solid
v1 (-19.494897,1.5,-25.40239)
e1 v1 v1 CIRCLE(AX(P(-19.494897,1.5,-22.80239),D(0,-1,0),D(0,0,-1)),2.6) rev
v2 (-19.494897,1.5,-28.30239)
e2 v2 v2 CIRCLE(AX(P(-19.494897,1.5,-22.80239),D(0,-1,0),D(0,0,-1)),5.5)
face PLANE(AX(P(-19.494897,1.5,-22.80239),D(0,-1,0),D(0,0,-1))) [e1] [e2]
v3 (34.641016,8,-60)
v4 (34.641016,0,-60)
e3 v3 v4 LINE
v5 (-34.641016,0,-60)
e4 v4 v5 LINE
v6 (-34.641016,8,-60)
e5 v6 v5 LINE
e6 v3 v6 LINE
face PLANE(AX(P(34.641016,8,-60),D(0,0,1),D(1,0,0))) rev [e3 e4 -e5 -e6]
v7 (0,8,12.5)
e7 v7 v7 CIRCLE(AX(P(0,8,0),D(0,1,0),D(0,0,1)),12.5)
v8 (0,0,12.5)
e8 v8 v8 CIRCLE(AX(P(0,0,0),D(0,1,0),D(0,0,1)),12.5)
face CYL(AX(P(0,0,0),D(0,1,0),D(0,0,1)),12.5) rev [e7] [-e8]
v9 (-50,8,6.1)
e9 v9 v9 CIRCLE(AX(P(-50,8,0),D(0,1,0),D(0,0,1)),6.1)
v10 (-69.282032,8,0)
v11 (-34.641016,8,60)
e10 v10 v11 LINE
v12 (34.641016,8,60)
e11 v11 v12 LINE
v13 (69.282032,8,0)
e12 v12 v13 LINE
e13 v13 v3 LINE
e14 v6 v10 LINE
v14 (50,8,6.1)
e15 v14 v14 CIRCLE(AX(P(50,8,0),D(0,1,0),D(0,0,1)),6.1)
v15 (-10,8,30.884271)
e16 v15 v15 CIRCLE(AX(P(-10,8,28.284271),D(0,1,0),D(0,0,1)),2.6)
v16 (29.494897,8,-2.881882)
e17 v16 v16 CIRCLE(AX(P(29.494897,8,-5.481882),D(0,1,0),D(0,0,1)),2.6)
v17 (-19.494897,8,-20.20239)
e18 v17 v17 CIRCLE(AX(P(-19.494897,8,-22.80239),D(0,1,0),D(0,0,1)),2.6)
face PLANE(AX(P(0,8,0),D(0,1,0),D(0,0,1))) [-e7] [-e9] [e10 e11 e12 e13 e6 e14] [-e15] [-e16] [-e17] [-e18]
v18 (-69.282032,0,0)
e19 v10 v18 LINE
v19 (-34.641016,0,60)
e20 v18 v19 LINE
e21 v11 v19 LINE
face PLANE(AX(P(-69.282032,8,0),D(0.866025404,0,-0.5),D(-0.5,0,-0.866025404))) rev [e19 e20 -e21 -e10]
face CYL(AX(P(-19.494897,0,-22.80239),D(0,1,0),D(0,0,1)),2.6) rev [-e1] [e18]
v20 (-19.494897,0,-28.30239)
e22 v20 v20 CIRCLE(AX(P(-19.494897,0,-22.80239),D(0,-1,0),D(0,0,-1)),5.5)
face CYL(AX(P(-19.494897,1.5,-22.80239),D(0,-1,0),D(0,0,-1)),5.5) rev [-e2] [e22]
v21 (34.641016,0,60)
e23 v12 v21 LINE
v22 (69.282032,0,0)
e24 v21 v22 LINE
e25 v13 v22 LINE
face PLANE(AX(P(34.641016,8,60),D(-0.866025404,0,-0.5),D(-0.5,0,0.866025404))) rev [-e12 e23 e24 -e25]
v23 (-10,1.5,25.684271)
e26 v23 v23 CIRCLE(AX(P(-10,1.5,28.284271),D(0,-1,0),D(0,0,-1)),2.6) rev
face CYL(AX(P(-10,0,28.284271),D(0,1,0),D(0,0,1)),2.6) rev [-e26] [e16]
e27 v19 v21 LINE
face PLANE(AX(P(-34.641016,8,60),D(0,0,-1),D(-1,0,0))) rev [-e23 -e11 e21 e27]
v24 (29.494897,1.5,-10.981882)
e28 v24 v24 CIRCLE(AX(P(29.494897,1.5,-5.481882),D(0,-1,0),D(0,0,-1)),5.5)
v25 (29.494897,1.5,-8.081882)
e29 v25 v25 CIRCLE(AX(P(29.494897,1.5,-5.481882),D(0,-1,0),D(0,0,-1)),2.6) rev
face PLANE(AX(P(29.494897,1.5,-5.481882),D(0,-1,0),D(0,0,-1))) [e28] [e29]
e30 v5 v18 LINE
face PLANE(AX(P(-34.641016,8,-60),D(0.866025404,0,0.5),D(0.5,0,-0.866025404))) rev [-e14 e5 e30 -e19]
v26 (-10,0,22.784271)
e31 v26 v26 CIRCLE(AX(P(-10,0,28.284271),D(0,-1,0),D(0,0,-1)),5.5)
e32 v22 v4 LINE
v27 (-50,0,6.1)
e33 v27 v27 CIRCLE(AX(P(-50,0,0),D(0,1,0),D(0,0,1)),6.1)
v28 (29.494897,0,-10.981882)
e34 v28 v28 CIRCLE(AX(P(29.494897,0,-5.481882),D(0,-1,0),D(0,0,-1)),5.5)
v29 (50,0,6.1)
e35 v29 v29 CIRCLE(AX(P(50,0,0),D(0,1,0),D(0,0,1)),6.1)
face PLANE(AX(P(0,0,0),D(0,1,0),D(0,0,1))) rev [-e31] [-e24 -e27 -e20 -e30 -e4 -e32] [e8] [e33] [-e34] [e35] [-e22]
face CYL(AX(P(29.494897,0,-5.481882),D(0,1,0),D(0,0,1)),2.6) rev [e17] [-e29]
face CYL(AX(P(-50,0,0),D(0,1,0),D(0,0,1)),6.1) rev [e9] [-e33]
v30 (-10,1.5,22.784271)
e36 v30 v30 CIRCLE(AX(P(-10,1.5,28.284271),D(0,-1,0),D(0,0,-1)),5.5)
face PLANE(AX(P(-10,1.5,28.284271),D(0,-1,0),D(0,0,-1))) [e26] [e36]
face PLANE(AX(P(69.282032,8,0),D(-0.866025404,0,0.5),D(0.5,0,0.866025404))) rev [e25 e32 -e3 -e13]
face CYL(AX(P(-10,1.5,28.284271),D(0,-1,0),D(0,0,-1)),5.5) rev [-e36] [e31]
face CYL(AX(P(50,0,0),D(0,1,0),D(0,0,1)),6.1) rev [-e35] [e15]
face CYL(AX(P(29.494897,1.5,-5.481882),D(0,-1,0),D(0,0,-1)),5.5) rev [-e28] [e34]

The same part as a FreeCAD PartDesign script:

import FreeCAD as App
import Part
import Sketcher
Q = App.Units.Quantity

doc = App.newDocument("Part")
body = doc.addObject("PartDesign::Body", "Body")

# Sketch on XZ plane
sketch1 = body.newObject("Sketcher::SketchObject", "Sketch")
sketch1.AttachmentSupport = (doc.getObject("XZ_Plane"), [""])
sketch1.MapMode = "FlatFace"
sketch1.addGeometry([
    Part.LineSegment(App.Vector(69, 0, 0), App.Vector(35, -60, 0)),  # 0
    Part.LineSegment(App.Vector(35, -60, 0), App.Vector(-35, -60, 0)),  # 1
    Part.LineSegment(App.Vector(-35, -60, 0), App.Vector(-69, 0, 0)),  # 2
    Part.LineSegment(App.Vector(-69, 0, 0), App.Vector(-35, 60, 0)),  # 3
    Part.LineSegment(App.Vector(-35, 60, 0), App.Vector(35, 60, 0)),  # 4
    Part.LineSegment(App.Vector(35, 60, 0), App.Vector(69, 0, 0)),  # 5
], False)
sketch1.addConstraint([
    Sketcher.Constraint("Coincident", 0, 2, 1, 1),
    Sketcher.Constraint("Coincident", 1, 2, 2, 1),
    Sketcher.Constraint("Coincident", 2, 2, 3, 1),
    Sketcher.Constraint("Coincident", 3, 2, 4, 1),
    Sketcher.Constraint("Coincident", 4, 2, 5, 1),
    Sketcher.Constraint("Coincident", 5, 2, 0, 1),
    Sketcher.Constraint("Horizontal", 1),
    Sketcher.Constraint("Horizontal", 4),
    Sketcher.Constraint("Symmetric", 0, 2, 3, 2, -1, 1),
    Sketcher.Constraint("Symmetric", 2, 2, 5, 2, -1, 1),
    Sketcher.Constraint("PointOnObject", 2, 2, -1),
    Sketcher.Constraint("Parallel", 2, 5),
    Sketcher.Constraint("Vertical", 1, 2, 3, 2),
    Sketcher.Constraint("Angle", 0, Q("-120 deg")),
    Sketcher.Constraint("DistanceY", 0, 2, -1, 1, Q("60 mm")),
    Sketcher.Constraint("DistanceX", 1, 2, 1, 1, Q("69.282032 mm")),
])
pad1 = body.newObject("PartDesign::Pad", "Pad")
pad1.Profile = sketch1
pad1.Length = 8
pad1.Reversed = True

# Sketch on XZ plane
sketch2 = body.newObject("Sketcher::SketchObject", "Sketch001")
sketch2.AttachmentSupport = (doc.getObject("XZ_Plane"), [""])
sketch2.MapMode = "FlatFace"
sketch2.AttachmentOffset = App.Placement(App.Vector(0, 0, -8), App.Rotation())
sketch2.addGeometry([
    Part.Circle(App.Vector(-50, 0, 0), App.Vector(0, 0, 1), 6),
    Part.Circle(App.Vector(50, 0, 0), App.Vector(0, 0, 1), 6),
], False)
sketch2.addConstraint([
    Sketcher.Constraint("Equal", 0, 1),
    Sketcher.Constraint("Symmetric", 0, 3, 1, 3, -1, 1),
    Sketcher.Constraint("PointOnObject", 0, 3, -1),
    Sketcher.Constraint("Diameter", 0, Q("12.2 mm")),
    Sketcher.Constraint("DistanceX", 0, 3, -1, 1, Q("50 mm")),
])
pocket1 = body.newObject("PartDesign::Pocket", "Pocket")
pocket1.Profile = sketch2
pocket1.Type = "ThroughAll"
pocket1.Reversed = True

# Sketch on XZ plane
sketch3 = body.newObject("Sketcher::SketchObject", "Sketch002")
sketch3.AttachmentSupport = (doc.getObject("XZ_Plane"), [""])
sketch3.MapMode = "FlatFace"
sketch3.AttachmentOffset = App.Placement(App.Vector(0, 0, -8), App.Rotation())
sketch3.addGeometry(Part.Circle(App.Vector(0, 0, 0), App.Vector(0, 0, 1), 12), False)
sketch3.addConstraint([
    Sketcher.Constraint("Coincident", 0, 3, -1, 1),
    Sketcher.Constraint("Diameter", 0, Q("25 mm")),
])
pocket2 = body.newObject("PartDesign::Pocket", "Pocket001")
pocket2.Profile = sketch3
pocket2.Type = "ThroughAll"
pocket2.Reversed = True

# Sketch on XZ plane
sketch4 = body.newObject("Sketcher::SketchObject", "Sketch003")
sketch4.AttachmentSupport = (doc.getObject("XZ_Plane"), [""])
sketch4.MapMode = "FlatFace"
sketch4.AttachmentOffset = App.Placement(App.Vector(0, 0, -8), App.Rotation())
sketch4.addGeometry([
    Part.Circle(App.Vector(-10, 28.3, 0), App.Vector(0, 0, 1), 2.6),
    Part.Circle(App.Vector(-19.5, -22.8, 0), App.Vector(0, 0, 1), 2.6),
    Part.Circle(App.Vector(29.5, -5.5, 0), App.Vector(0, 0, 1), 2.6),
], False)
sketch4.addConstraint([
    Sketcher.Constraint("Equal", 0, 1),
    Sketcher.Constraint("Equal", 1, 2),
    Sketcher.Constraint("Diameter", 0, Q("5.2 mm")),
    Sketcher.Constraint("DistanceX", 0, 3, -1, 1, Q("10 mm")),
    Sketcher.Constraint("DistanceY", -1, 1, 0, 3, Q("28.284271 mm")),
    Sketcher.Constraint("DistanceY", 1, 3, -1, 1, Q("22.80239 mm")),
    Sketcher.Constraint("DistanceY", 2, 3, -1, 1, Q("5.481882 mm")),
    Sketcher.Constraint("DistanceX", 1, 3, -1, 1, Q("19.494897 mm")),
    Sketcher.Constraint("DistanceX", -1, 1, 2, 3, Q("29.494897 mm")),
])
pocket3 = body.newObject("PartDesign::Pocket", "Pocket002")
pocket3.Profile = sketch4
pocket3.Type = "ThroughAll"
pocket3.Reversed = True

# Sketch on XZ plane
sketch5 = body.newObject("Sketcher::SketchObject", "Sketch004")
sketch5.AttachmentSupport = (doc.getObject("XZ_Plane"), [""])
sketch5.MapMode = "FlatFace"
sketch5.addGeometry([
    Part.Circle(App.Vector(-10, 28, 0), App.Vector(0, 0, 1), 6),
    Part.Circle(App.Vector(-19, -23, 0), App.Vector(0, 0, 1), 6),
    Part.Circle(App.Vector(29, -5, 0), App.Vector(0, 0, 1), 6),
], False)
sketch5.addConstraint([
    Sketcher.Constraint("Equal", 0, 1),
    Sketcher.Constraint("Equal", 1, 2),
    Sketcher.Constraint("Diameter", 0, Q("11 mm")),
    Sketcher.Constraint("DistanceX", 0, 3, -1, 1, Q("10 mm")),
    Sketcher.Constraint("DistanceY", -1, 1, 0, 3, Q("28.284271 mm")),
    Sketcher.Constraint("DistanceY", 1, 3, -1, 1, Q("22.80239 mm")),
    Sketcher.Constraint("DistanceY", 2, 3, -1, 1, Q("5.481882 mm")),
    Sketcher.Constraint("DistanceX", 1, 3, -1, 1, Q("19.494897 mm")),
    Sketcher.Constraint("DistanceX", -1, 1, 2, 3, Q("29.494897 mm")),
])
pocket4 = body.newObject("PartDesign::Pocket", "Pocket003")
pocket4.Profile = sketch5
pocket4.Length = 1.5

doc.recompute()
